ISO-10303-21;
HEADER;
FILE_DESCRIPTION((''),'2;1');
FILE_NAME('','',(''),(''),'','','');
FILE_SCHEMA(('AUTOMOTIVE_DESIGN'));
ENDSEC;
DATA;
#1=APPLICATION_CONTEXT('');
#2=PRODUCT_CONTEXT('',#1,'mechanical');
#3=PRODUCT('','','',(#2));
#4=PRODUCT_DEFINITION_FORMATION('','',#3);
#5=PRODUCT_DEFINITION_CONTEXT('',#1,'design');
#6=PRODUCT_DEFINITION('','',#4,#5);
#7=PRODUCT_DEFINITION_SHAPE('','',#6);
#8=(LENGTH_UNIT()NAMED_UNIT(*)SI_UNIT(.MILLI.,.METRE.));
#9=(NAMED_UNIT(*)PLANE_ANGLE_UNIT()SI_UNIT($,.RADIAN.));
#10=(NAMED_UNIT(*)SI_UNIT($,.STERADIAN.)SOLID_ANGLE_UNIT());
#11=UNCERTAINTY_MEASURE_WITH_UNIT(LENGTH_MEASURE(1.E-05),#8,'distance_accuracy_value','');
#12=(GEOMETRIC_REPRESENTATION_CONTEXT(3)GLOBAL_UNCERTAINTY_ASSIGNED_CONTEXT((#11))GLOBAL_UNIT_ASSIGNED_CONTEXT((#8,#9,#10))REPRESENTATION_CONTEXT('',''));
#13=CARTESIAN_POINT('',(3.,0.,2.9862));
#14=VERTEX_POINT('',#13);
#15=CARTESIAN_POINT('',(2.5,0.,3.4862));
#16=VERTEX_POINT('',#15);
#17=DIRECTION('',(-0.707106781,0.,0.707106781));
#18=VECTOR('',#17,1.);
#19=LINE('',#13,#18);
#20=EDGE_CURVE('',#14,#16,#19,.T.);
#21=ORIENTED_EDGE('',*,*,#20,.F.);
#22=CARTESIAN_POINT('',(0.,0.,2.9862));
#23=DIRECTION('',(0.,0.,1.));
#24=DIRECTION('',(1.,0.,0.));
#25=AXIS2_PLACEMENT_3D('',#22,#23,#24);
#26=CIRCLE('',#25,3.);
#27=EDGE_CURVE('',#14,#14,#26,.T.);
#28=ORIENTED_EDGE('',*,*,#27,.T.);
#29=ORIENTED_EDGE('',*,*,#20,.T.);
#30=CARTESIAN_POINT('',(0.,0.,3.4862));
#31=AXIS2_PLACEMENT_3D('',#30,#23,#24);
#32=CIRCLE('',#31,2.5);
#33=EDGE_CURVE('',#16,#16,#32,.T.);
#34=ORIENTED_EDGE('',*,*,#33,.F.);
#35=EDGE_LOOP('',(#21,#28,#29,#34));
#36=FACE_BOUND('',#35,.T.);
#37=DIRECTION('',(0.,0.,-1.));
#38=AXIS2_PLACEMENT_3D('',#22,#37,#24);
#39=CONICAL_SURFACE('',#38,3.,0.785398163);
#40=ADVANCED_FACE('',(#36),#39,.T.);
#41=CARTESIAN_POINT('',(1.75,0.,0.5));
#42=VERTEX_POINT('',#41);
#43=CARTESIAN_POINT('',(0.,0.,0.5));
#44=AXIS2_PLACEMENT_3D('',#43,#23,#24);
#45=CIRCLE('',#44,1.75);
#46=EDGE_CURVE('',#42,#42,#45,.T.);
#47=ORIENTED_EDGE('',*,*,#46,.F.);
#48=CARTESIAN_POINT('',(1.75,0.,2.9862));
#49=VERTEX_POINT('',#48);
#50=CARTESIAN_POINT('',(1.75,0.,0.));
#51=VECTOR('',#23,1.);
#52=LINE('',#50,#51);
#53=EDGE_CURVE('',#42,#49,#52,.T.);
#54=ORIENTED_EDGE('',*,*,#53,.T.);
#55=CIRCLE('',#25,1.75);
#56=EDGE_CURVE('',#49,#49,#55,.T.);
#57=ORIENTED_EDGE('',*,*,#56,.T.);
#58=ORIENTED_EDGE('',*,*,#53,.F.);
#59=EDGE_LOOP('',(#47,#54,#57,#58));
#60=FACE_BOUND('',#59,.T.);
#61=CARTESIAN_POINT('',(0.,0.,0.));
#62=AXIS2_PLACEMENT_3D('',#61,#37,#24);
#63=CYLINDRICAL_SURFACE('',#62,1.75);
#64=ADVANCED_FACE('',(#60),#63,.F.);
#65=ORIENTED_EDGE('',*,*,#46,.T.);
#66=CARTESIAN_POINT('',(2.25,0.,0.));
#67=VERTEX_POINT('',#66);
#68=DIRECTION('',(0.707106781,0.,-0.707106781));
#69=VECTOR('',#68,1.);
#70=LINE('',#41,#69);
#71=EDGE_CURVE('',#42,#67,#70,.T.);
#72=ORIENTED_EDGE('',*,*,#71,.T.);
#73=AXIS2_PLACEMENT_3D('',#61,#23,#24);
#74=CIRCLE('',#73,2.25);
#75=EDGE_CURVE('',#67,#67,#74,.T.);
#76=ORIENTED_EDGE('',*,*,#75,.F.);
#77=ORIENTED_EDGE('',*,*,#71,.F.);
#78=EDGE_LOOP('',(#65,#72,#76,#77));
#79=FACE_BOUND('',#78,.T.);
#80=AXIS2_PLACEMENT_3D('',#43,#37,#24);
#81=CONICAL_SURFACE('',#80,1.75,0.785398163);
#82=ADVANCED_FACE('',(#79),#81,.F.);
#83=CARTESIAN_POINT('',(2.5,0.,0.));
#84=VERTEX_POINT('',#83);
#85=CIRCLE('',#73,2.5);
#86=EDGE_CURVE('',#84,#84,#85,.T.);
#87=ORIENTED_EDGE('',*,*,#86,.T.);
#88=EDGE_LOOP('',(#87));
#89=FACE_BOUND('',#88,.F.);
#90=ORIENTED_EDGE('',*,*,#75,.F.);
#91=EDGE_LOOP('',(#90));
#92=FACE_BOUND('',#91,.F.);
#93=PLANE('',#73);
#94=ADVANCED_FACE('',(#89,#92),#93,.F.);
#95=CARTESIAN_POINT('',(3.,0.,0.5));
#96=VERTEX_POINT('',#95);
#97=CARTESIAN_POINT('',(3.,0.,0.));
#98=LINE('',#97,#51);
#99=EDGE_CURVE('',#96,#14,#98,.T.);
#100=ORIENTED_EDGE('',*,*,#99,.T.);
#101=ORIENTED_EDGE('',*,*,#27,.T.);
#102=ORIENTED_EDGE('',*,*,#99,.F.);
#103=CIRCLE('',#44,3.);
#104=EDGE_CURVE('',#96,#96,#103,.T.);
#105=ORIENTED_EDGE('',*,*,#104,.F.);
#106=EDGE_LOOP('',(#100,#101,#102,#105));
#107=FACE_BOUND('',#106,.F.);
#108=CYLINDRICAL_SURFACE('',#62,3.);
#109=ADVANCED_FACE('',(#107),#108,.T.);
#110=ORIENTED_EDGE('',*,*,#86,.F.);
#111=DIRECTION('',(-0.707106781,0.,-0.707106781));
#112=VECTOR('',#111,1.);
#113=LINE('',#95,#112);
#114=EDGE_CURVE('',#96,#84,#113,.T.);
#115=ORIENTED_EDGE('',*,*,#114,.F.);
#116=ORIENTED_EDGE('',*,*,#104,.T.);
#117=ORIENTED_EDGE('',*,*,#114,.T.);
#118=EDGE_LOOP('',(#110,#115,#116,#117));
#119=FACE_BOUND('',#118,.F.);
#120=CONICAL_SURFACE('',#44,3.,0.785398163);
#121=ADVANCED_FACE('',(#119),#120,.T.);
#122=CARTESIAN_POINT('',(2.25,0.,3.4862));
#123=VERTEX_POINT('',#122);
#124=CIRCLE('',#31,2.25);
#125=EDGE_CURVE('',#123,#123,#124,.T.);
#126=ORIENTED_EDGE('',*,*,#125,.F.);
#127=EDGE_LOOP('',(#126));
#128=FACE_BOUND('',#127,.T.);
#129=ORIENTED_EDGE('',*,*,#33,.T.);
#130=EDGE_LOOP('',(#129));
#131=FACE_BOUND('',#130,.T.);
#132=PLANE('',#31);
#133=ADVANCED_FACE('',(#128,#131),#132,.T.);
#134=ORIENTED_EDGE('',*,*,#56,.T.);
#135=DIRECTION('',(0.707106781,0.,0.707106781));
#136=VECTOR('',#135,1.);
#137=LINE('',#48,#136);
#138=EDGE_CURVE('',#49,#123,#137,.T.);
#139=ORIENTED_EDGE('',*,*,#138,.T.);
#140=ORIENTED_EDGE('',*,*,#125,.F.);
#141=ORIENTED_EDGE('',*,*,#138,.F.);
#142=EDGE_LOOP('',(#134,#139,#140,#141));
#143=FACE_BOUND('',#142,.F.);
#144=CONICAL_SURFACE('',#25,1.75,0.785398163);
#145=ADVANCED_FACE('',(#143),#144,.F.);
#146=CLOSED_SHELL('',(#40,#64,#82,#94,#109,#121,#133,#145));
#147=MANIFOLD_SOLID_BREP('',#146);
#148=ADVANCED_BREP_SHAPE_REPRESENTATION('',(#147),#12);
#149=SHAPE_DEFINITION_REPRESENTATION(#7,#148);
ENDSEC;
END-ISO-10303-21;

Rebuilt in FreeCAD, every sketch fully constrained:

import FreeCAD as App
import Part
import Sketcher

V = App.Vector


def edges_at(feature, points):
    """Names of the edges that pass closest to the given points."""
    edges = feature.Shape.Edges
    near = lambda p: min(range(len(edges)), key=lambda i: edges[i].distToShape(Part.Vertex(*p))[0])
    return sorted({f"Edge{near(p) + 1}" for p in points})

doc = App.newDocument("Part")
body = doc.addObject("PartDesign::Body", "Body")

# Sketch on XY plane
sketch1 = body.newObject("Sketcher::SketchObject", "Sketch")
sketch1.AttachmentSupport = (doc.getObject("XY_Plane"), [""])
sketch1.MapMode = "FlatFace"
sketch1.addGeometry(Part.Circle(V(0, 0, 0), V(0, 0, 1), 3), False)
sketch1.addGeometry(Part.Circle(V(0, 0, 0), V(0, 0, 1), 1.75), False)
sketch1.addConstraint(Sketcher.Constraint("Coincident", 0, 3, -1, 1))
sketch1.addConstraint(Sketcher.Constraint("Coincident", 1, 3, -1, 1))
sketch1.addConstraint(Sketcher.Constraint("Diameter", 0, 6.0))
sketch1.addConstraint(Sketcher.Constraint("Diameter", 1, 3.5))
pad1 = body.newObject("PartDesign::Pad", "Pad")
pad1.Profile = sketch1
pad1.Length = 3.4862
doc.recompute()

chamfer = body.newObject("PartDesign::Chamfer", "Chamfer")
chamfer.Base = (pad1, edges_at(pad1, [
    (-1.75, 0, 3.486),
    (-1.75, 0, 0),
    (-3, 0, 3.486),
    (-3, 0, 0),
]))
chamfer.Size = 0.5

doc.recompute()
